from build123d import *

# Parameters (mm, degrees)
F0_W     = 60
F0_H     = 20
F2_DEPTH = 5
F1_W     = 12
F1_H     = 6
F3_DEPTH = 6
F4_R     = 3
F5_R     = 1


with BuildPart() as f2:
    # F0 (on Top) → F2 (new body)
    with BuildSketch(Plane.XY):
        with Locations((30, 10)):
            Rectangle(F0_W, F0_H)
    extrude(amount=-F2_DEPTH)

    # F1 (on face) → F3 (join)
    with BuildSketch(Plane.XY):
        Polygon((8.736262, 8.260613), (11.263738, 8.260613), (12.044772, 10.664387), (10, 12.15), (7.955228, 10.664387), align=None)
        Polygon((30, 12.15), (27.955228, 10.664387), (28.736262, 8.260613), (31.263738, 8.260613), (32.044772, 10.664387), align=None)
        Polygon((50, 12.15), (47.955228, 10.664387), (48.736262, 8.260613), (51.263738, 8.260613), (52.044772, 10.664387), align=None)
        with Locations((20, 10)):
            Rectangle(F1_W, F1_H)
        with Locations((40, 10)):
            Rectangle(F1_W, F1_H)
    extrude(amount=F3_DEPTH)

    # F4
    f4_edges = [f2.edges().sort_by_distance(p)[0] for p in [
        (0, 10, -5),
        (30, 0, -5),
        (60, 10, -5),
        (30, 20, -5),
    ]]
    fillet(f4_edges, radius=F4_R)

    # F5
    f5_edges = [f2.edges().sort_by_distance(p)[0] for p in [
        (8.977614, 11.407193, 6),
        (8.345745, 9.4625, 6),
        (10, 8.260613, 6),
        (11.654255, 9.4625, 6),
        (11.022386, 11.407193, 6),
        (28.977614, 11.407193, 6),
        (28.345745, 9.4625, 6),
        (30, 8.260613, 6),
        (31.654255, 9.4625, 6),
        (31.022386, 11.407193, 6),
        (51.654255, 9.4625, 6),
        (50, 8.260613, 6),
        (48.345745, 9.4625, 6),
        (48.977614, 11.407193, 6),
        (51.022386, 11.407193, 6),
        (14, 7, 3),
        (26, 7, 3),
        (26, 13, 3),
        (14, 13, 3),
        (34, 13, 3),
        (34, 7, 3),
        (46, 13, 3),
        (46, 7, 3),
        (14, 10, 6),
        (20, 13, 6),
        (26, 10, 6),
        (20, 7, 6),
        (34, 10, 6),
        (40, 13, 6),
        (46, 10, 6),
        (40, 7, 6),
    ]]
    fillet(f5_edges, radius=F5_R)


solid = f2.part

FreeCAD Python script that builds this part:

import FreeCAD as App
import Part
import Sketcher

V = App.Vector
Q = App.Units.Quantity


def edges_at(feature, points):
    """Names of the edges that pass closest to the given points."""
    edges = feature.Shape.Edges
    near = lambda p: min(range(len(edges)), key=lambda i: edges[i].distToShape(Part.Vertex(*p))[0])
    return sorted({f"Edge{near(p) + 1}" for p in points})

doc = App.newDocument("Part")
params = doc.addObject("Spreadsheet::Sheet", "Params")
for row, (alias, value) in enumerate([
    ("sketch1_width", "60 mm"),
    ("sketch1_height", "20 mm"),
    ("pad1_length", "5 mm"),
    ("sketch2_width", "12 mm"),
    ("sketch2_height", "6 mm"),
    ("pad2_length", "6 mm"),
    ("fillet_radius", "3 mm"),
    ("fillet2_radius", "1 mm"),
], start=1):
    params.set(f"A{row}", alias)
    params.set(f"B{row}", "=" + value)
    params.setAlias(f"B{row}", alias)

body = doc.addObject("PartDesign::Body", "Body")

# Sketch on XY plane
sketch1 = doc.addObject("Sketcher::SketchObject", "Sketch")
body.addObject(sketch1)
sketch1.AttachmentSupport = (doc.XY_Plane, [""])
sketch1.MapMode = "FlatFace"
sketch1.addGeometry([
    Part.LineSegment(V(0, 20, 0), V(0, 0, 0)),
    Part.LineSegment(V(0, 0, 0), V(60, 0, 0)),
    Part.LineSegment(V(60, 0, 0), V(60, 20, 0)),
    Part.LineSegment(V(60, 20, 0), V(0, 20, 0)),
], False)
sketch1.addConstraint([
    Sketcher.Constraint("Coincident", 0, 2, 1, 1),
    Sketcher.Constraint("Coincident", 1, 2, 2, 1),
    Sketcher.Constraint("Coincident", 2, 2, 3, 1),
    Sketcher.Constraint("Coincident", 3, 2, 0, 1),
    Sketcher.Constraint("Vertical", 0),
    Sketcher.Constraint("Horizontal", 1),
    Sketcher.Constraint("Vertical", 2),
    Sketcher.Constraint("Horizontal", 3),
    Sketcher.Constraint("Coincident", 0, 2, -1, 1),
    Sketcher.Constraint("DistanceX", 1, 1, 1, 2, Q("60 mm")),
    Sketcher.Constraint("DistanceY", 0, 2, 0, 1, Q("20 mm")),
])
sketch1.setExpression("Constraints[9]", "Params.sketch1_width")
sketch1.setExpression("Constraints[10]", "Params.sketch1_height")
pad1 = doc.addObject("PartDesign::Pad", "Pad")
body.addObject(pad1)
pad1.Profile = sketch1
pad1.setExpression("Length", "Params.pad1_length")
pad1.Reversed = True

# Sketch on XY plane
sketch2 = doc.addObject("Sketcher::SketchObject", "Sketch001")
body.addObject(sketch2)
sketch2.AttachmentSupport = (doc.XY_Plane, [""])
sketch2.MapMode = "FlatFace"
sketch2.addGeometry([
    Part.LineSegment(V(8.736262, 8.260613, 0), V(11.263738, 8.260613, 0)),  # 0
    Part.LineSegment(V(11.263738, 8.260613, 0), V(12.044772, 10.664387, 0)),  # 1
    Part.LineSegment(V(12.044772, 10.664387, 0), V(10, 12.15, 0)),  # 2
    Part.LineSegment(V(10, 12.15, 0), V(7.955228, 10.664387, 0)),  # 3
    Part.LineSegment(V(7.955228, 10.664387, 0), V(8.736262, 8.260613, 0)),  # 4
    Part.LineSegment(V(30, 12.15, 0), V(27.955228, 10.664387, 0)),  # 5
    Part.LineSegment(V(27.955228, 10.664387, 0), V(28.736262, 8.260613, 0)),  # 6
    Part.LineSegment(V(28.736262, 8.260613, 0), V(31.263738, 8.260613, 0)),  # 7
    Part.LineSegment(V(31.263738, 8.260613, 0), V(32.044772, 10.664387, 0)),  # 8
    Part.LineSegment(V(32.044772, 10.664387, 0), V(30, 12.15, 0)),  # 9
    Part.LineSegment(V(50, 12.15, 0), V(47.955228, 10.664387, 0)),  # 10
    Part.LineSegment(V(47.955228, 10.664387, 0), V(48.736262, 8.260613, 0)),  # 11
    Part.LineSegment(V(48.736262, 8.260613, 0), V(51.263738, 8.260613, 0)),  # 12
    Part.LineSegment(V(51.263738, 8.260613, 0), V(52.044772, 10.664387, 0)),  # 13
    Part.LineSegment(V(52.044772, 10.664387, 0), V(50, 12.15, 0)),  # 14
    Part.LineSegment(V(14, 13, 0), V(14, 7, 0)),  # 15
    Part.LineSegment(V(14, 7, 0), V(26, 7, 0)),  # 16
    Part.LineSegment(V(26, 7, 0), V(26, 13, 0)),  # 17
    Part.LineSegment(V(26, 13, 0), V(14, 13, 0)),  # 18
    Part.LineSegment(V(34, 13, 0), V(34, 7, 0)),  # 19
    Part.LineSegment(V(34, 7, 0), V(46, 7, 0)),  # 20
    Part.LineSegment(V(46, 7, 0), V(46, 13, 0)),  # 21
    Part.LineSegment(V(46, 13, 0), V(34, 13, 0)),  # 22
], False)
sketch2.addConstraint([
    Sketcher.Constraint("Coincident", 0, 2, 1, 1),
    Sketcher.Constraint("Coincident", 1, 2, 2, 1),
    Sketcher.Constraint("Coincident", 2, 2, 3, 1),
    Sketcher.Constraint("Coincident", 3, 2, 4, 1),
    Sketcher.Constraint("Coincident", 4, 2, 0, 1),
    Sketcher.Constraint("Coincident", 5, 2, 6, 1),
    Sketcher.Constraint("Coincident", 6, 2, 7, 1),
    Sketcher.Constraint("Coincident", 7, 2, 8, 1),
    Sketcher.Constraint("Coincident", 8, 2, 9, 1),
    Sketcher.Constraint("Coincident", 9, 2, 5, 1),
    Sketcher.Constraint("Coincident", 10, 2, 11, 1),
    Sketcher.Constraint("Coincident", 11, 2, 12, 1),
    Sketcher.Constraint("Coincident", 12, 2, 13, 1),
    Sketcher.Constraint("Coincident", 13, 2, 14, 1),
    Sketcher.Constraint("Coincident", 14, 2, 10, 1),
    Sketcher.Constraint("Coincident", 15, 2, 16, 1),
    Sketcher.Constraint("Coincident", 16, 2, 17, 1),
    Sketcher.Constraint("Coincident", 17, 2, 18, 1),
    Sketcher.Constraint("Coincident", 18, 2, 15, 1),
    Sketcher.Constraint("Coincident", 19, 2, 20, 1),
    Sketcher.Constraint("Coincident", 20, 2, 21, 1),
    Sketcher.Constraint("Coincident", 21, 2, 22, 1),
    Sketcher.Constraint("Coincident", 22, 2, 19, 1),
    Sketcher.Constraint("Horizontal", 0),
    Sketcher.Constraint("Horizontal", 7),
    Sketcher.Constraint("Horizontal", 12),
    Sketcher.Constraint("Vertical", 15),
    Sketcher.Constraint("Horizontal", 16),
    Sketcher.Constraint("Vertical", 17),
    Sketcher.Constraint("Horizontal", 18),
    Sketcher.Constraint("Vertical", 19),
    Sketcher.Constraint("Horizontal", 20),
    Sketcher.Constraint("Vertical", 21),
    Sketcher.Constraint("Horizontal", 22),
    Sketcher.Constraint("Parallel", 3, 5),
    Sketcher.Constraint("Parallel", 4, 6),
    Sketcher.Constraint("Parallel", 1, 8),
    Sketcher.Constraint("Parallel", 2, 9),
    Sketcher.Constraint("Parallel", 5, 10),
    Sketcher.Constraint("Parallel", 6, 11),
    Sketcher.Constraint("Parallel", 8, 13),
    Sketcher.Constraint("Parallel", 9, 14),
    Sketcher.Constraint("Horizontal", 1, 2, 3, 2),
    Sketcher.Constraint("Horizontal", 3, 2, 5, 2),
    Sketcher.Constraint("Horizontal", 4, 2, 6, 2),
    Sketcher.Constraint("Horizontal", 5, 2, 8, 2),
    Sketcher.Constraint("Horizontal", 2, 2, 9, 2),
    Sketcher.Constraint("Horizontal", 8, 2, 10, 2),
    Sketcher.Constraint("Horizontal", 7, 2, 11, 2),
    Sketcher.Constraint("Horizontal", 10, 2, 13, 2),
    Sketcher.Constraint("Horizontal", 9, 2, 14, 2),
    Sketcher.Constraint("Horizontal", 16, 2, 19, 2),
    Sketcher.Constraint("Horizontal", 18, 2, 21, 2),
    Sketcher.Constraint("Equal", 18, 20),
    Sketcher.Constraint("Equal", 1, 2),
    Sketcher.Constraint("Equal", 2, 3),
    Sketcher.Constraint("Equal", 3, 4),
    Sketcher.Constraint("DistanceX", 16, 1, 16, 2, Q("12 mm")),
    Sketcher.Constraint("DistanceY", 15, 2, 15, 1, Q("6 mm")),
    Sketcher.Constraint("Angle", 1, Q("71.99999 deg")),
    Sketcher.Constraint("Angle", 2, Q("144.000015 deg")),
    Sketcher.Constraint("DistanceX", -1, 1, 2, 2, Q("10 mm")),
    Sketcher.Constraint("DistanceX", -1, 1, 9, 2, Q("30 mm")),
    Sketcher.Constraint("DistanceX", -1, 1, 14, 2, Q("50 mm")),
    Sketcher.Constraint("DistanceX", -1, 1, 15, 2, Q("14 mm")),
    Sketcher.Constraint("DistanceY", -1, 1, 15, 2, Q("7 mm")),
    Sketcher.Constraint("DistanceX", -1, 1, 19, 2, Q("34 mm")),
    Sketcher.Constraint("DistanceY", -1, 1, 2, 2, Q("12.15 mm")),
    Sketcher.Constraint("DistanceX", 0, 1, 0, 2, Q("2.527476 mm")),
])
sketch2.setExpression("Constraints[57]", "Params.sketch2_width")
sketch2.setExpression("Constraints[58]", "Params.sketch2_height")
pad2 = doc.addObject("PartDesign::Pad", "Pad001")
body.addObject(pad2)
pad2.Profile = sketch2
pad2.setExpression("Length", "Params.pad2_length")
doc.recompute()

fillet = doc.addObject("PartDesign::Fillet", "Fillet")
body.addObject(fillet)
fillet.Base = (pad2, edges_at(pad2, [
    (0, 10, -5),
    (30, 0, -5),
    (60, 10, -5),
    (30, 20, -5),
]))
fillet.setExpression("Radius", "Params.fillet_radius")
doc.recompute()

fillet2 = doc.addObject("PartDesign::Fillet", "Fillet001")
body.addObject(fillet2)
fillet2.Base = (fillet, edges_at(fillet, [
    (8.978, 11.407, 6),
    (8.346, 9.463, 6),
    (10, 8.261, 6),
    (11.654, 9.463, 6),
    (11.022, 11.407, 6),
    (28.978, 11.407, 6),
    (28.346, 9.463, 6),
    (30, 8.261, 6),
    (31.654, 9.463, 6),
    (31.022, 11.407, 6),
    (51.654, 9.463, 6),
    (50, 8.261, 6),
    (48.346, 9.463, 6),
    (48.978, 11.407, 6),
    (51.022, 11.407, 6),
    (14, 7, 3),
    (26, 7, 3),
    (26, 13, 3),
    (14, 13, 3),
    (34, 13, 3),
    (34, 7, 3),
    (46, 13, 3),
    (46, 7, 3),
    (14, 10, 6),
    (20, 13, 6),
    (26, 10, 6),
    (20, 7, 6),
    (34, 10, 6),
    (40, 13, 6),
    (46, 10, 6),
    (40, 7, 6),
]))
fillet2.setExpression("Radius", "Params.fillet2_radius")

doc.recompute()
